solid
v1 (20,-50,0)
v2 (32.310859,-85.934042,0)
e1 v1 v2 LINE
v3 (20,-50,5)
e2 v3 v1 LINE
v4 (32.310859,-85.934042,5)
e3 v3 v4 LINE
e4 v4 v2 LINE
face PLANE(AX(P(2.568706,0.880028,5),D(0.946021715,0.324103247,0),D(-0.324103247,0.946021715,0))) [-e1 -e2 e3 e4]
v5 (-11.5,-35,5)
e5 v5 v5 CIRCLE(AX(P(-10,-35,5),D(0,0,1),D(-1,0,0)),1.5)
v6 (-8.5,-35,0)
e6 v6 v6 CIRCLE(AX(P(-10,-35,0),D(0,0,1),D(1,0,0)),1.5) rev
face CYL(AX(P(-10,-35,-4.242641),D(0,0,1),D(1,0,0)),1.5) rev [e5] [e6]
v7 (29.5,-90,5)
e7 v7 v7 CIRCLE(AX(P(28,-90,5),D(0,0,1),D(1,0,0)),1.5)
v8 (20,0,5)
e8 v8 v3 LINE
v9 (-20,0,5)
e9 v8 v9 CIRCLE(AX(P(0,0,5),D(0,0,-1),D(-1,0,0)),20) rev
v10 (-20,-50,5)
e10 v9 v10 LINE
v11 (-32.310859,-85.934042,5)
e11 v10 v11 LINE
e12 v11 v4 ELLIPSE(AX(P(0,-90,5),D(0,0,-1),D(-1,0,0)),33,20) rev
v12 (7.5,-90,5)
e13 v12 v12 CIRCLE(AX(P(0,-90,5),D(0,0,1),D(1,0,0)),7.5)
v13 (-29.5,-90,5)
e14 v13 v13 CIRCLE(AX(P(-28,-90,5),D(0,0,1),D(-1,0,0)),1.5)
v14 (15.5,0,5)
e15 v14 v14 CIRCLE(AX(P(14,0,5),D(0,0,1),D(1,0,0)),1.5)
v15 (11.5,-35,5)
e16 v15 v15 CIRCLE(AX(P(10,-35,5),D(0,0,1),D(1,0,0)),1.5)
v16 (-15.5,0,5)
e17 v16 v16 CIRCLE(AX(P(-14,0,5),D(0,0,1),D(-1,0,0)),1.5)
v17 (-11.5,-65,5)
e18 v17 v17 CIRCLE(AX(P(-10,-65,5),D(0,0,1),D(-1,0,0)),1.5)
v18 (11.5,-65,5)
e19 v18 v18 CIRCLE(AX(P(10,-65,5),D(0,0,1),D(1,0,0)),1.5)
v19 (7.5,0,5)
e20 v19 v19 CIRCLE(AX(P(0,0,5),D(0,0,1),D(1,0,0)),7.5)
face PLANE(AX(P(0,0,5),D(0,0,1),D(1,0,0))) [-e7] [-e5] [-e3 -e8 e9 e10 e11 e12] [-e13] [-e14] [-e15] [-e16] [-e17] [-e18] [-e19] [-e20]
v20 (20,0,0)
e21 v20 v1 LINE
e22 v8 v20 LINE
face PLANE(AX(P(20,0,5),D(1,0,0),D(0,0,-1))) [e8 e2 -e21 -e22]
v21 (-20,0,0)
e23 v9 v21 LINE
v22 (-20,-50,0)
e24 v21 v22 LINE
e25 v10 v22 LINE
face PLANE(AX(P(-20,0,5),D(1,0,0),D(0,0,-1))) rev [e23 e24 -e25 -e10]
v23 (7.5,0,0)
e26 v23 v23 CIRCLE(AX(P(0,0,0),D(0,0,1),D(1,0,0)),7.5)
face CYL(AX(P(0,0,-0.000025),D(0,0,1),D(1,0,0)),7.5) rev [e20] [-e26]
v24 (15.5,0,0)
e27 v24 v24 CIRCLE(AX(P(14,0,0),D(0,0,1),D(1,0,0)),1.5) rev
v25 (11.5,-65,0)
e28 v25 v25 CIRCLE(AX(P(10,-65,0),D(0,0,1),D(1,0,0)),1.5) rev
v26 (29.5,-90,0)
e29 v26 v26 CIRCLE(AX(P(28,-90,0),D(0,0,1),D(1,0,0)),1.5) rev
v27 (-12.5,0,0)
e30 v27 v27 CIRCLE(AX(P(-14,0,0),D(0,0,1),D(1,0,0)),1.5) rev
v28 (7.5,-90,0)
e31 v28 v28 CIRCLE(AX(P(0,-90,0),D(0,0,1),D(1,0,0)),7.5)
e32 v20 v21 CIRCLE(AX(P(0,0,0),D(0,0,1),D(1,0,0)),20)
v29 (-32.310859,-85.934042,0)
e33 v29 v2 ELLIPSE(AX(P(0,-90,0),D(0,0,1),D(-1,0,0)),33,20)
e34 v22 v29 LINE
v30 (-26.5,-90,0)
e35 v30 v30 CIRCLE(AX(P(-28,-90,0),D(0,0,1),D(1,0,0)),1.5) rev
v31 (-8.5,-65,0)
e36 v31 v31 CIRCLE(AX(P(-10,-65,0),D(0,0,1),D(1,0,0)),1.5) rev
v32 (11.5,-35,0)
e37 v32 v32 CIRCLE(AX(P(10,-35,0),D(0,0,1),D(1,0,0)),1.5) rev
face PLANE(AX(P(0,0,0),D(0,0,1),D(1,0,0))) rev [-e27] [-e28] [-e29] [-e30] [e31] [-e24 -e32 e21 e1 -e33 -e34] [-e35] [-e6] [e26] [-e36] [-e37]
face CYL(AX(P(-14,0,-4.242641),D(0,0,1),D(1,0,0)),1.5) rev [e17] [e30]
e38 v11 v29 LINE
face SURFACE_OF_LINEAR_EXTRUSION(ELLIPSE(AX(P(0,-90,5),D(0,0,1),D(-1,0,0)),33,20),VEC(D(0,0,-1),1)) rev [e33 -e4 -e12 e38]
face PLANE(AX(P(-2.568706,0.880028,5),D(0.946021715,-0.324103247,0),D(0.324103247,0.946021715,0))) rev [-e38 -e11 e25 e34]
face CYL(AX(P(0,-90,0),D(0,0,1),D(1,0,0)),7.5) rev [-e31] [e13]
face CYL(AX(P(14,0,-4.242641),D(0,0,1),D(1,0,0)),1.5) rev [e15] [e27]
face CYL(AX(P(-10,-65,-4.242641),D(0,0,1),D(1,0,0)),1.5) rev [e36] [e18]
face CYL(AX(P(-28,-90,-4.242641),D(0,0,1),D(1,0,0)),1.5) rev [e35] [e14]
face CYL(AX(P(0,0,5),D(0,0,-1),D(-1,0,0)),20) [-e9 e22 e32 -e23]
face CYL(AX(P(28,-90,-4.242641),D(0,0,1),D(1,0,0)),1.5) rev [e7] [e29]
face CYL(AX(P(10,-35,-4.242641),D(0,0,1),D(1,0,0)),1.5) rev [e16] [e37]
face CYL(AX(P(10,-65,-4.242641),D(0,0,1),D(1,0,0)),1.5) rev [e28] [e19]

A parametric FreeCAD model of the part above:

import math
import FreeCAD as App
import Part
import Sketcher
from FreeCAD import Vector

doc = App.newDocument("Part")
params = doc.addObject("Spreadsheet::Sheet", "Params")
for row, (alias, value) in enumerate([
    ("sketch1_radius", "20 mm"),
    ("sketch1_height", "50 mm"),
    ("pad1_length", "5 mm"),
    ("sketch2_diameter", "15 mm"),
    ("sketch2_radius", "20 mm"),
    ("sketch2_height", "50 mm"),
    ("sketch3_diameter", "15 mm"),
    ("sketch4_diameter", "3 mm"),
    ("pocket3_length", "5 mm"),
], start=1):
    params.set(f"A{row}", alias)
    params.set(f"B{row}", "=" + value)
    params.setAlias(f"B{row}", alias)

body = doc.addObject("PartDesign::Body", "Body")

# Sketch on XY plane
sketch1 = doc.addObject("Sketcher::SketchObject", "Sketch")
body.addObject(sketch1)
sketch1.AttachmentSupport = (doc.XY_Plane, [""])
sketch1.MapMode = "FlatFace"
sketch1.addGeometry([
    Part.LineSegment(Vector(-20, -50, 0), Vector(-32.310859, -85.934042, 0)),  # 0
    Part.BSplineCurve([Vector(-32.310859, -85.934042, 0), Vector(-32.585072, -86.734441, 0), Vector(-32.792534, -87.545444, 0), Vector(-32.931085, -88.362901, 0), Vector(-33, -89.182529, 0), Vector(-33, -95.656854, 0), Vector(-29.582738, -102.573593, 0), Vector(-20.746429, -107.928932, 0), Vector(-9.33381, -110, 0), Vector(0, -110, 0)], [6, 4, 6], [6.078460318, 6.283185307, 7.699871593], False, 5, [1, 1, 0.99998904, 0.99998904, 1, 1, 0.965685425, 0.965685425, 1, 1], False),  # 1
    Part.BSplineCurve([Vector(0, -110, 0), Vector(40.555759, -110, 0), Vector(32.310859, -85.934042, 0)], [3, 3], [1.570796321, 3.346317643], False, 2, [1, 0.631150574, 1], False),  # 2
    Part.LineSegment(Vector(32.310859, -85.934042, 0), Vector(20, -50, 0)),  # 3
    Part.LineSegment(Vector(20, -50, 0), Vector(20, 0, 0)),  # 4
    Part.ArcOfCircle(Part.Circle(Vector(0, 0, 0), Vector(0, 0, 1), 20), math.radians(0), math.radians(180)),  # 5
    Part.LineSegment(Vector(-20, 0, 0), Vector(-20, -50, 0)),  # 6
], False)
sketch1.addConstraint([
    Sketcher.Constraint("Block", 1),
    Sketcher.Constraint("Block", 2),
    Sketcher.Constraint("Coincident", 0, 2, 1, 1),
    Sketcher.Constraint("Coincident", 2, 2, 3, 1),
    Sketcher.Constraint("Coincident", 3, 2, 4, 1),
    Sketcher.Constraint("Tangent", 4, 2, 5, 1),
    Sketcher.Constraint("Tangent", 5, 2, 6, 1),
    Sketcher.Constraint("Coincident", 6, 2, 0, 1),
    Sketcher.Constraint("Vertical", 4),
    Sketcher.Constraint("Vertical", 6),
    Sketcher.Constraint("Coincident", 5, 3, -1, 1),
    Sketcher.Constraint("Horizontal", 3, 2, 6, 2),
    Sketcher.Constraint("Radius", 5, 20.0),
    Sketcher.Constraint("DistanceY", 4, 1, 4, 2, 50.0),
])
sketch1.setExpression("Constraints[12]", "Params.sketch1_radius")
sketch1.setExpression("Constraints[13]", "Params.sketch1_height")
pad1 = doc.addObject("PartDesign::Pad", "Pad")
body.addObject(pad1)
pad1.Profile = sketch1
pad1.setExpression("Length", "Params.pad1_length")

# Sketch on XY plane
sketch2 = doc.addObject("Sketcher::SketchObject", "Sketch001")
body.addObject(sketch2)
sketch2.AttachmentSupport = (doc.XY_Plane, [""])
sketch2.MapMode = "FlatFace"
sketch2.AttachmentOffset = App.Placement(Vector(0, 0, 5), App.Rotation())
sketch2.addGeometry([
    Part.LineSegment(Vector(-48.588, 35.588, 0), Vector(-48.588, -125.588, 0)),  # 0
    Part.LineSegment(Vector(-48.588, -125.588, 0), Vector(48.588, -125.588, 0)),  # 1
    Part.LineSegment(Vector(48.588, -125.588, 0), Vector(48.588, 35.588, 0)),  # 2
    Part.LineSegment(Vector(48.588, 35.588, 0), Vector(-48.588, 35.588, 0)),  # 3
    Part.LineSegment(Vector(20, -50, 0), Vector(32.310859, -85.934042, 0)),  # 4
    Part.BSplineCurve([Vector(-32.310859, -85.934042, 0), Vector(-40.555759, -110, 0), Vector(0, -110, 0), Vector(40.555759, -110, 0), Vector(32.310859, -85.934042, 0)], [3, 2, 3], [6.078460318, 7.853981634, 9.62950295], False, 2, [1, 0.631150576, 1, 0.631150576, 1], False),  # 5
    Part.LineSegment(Vector(-32.310859, -85.934042, 0), Vector(-20, -50, 0)),  # 6
    Part.LineSegment(Vector(-20, -50, 0), Vector(-20, 0, 0)),  # 7
    Part.ArcOfCircle(Part.Circle(Vector(0, 0, 0), Vector(0, 0, 1), 20), math.radians(0), math.radians(180)),  # 8
    Part.LineSegment(Vector(20, 0, 0), Vector(20, -50, 0)),  # 9
    Part.Circle(Vector(0, -90, 0), Vector(0, 0, 1), 7.5),  # 10
], False)
sketch2.addConstraint([
    Sketcher.Constraint("Block", 5),
    Sketcher.Constraint("Coincident", 0, 2, 1, 1),
    Sketcher.Constraint("Coincident", 1, 2, 2, 1),
    Sketcher.Constraint("Coincident", 2, 2, 3, 1),
    Sketcher.Constraint("Coincident", 3, 2, 0, 1),
    Sketcher.Constraint("Coincident", 4, 2, 5, 2),
    Sketcher.Constraint("Coincident", 5, 1, 6, 1),
    Sketcher.Constraint("Coincident", 6, 2, 7, 1),
    Sketcher.Constraint("Tangent", 7, 2, 8, 2),
    Sketcher.Constraint("Tangent", 8, 1, 9, 1),
    Sketcher.Constraint("Coincident", 9, 2, 4, 1),
    Sketcher.Constraint("Vertical", 0),
    Sketcher.Constraint("Horizontal", 1),
    Sketcher.Constraint("Vertical", 2),
    Sketcher.Constraint("Horizontal", 3),
    Sketcher.Constraint("Vertical", 7),
    Sketcher.Constraint("Vertical", 9),
    Sketcher.Constraint("Coincident", 8, 3, -1, 1),
    Sketcher.Constraint("PointOnObject", 10, 3, -2),
    Sketcher.Constraint("Horizontal", 6, 2, 9, 2),
    Sketcher.Constraint("Diameter", 10, 15.0),
    Sketcher.Constraint("Radius", 8, 20.0),
    Sketcher.Constraint("DistanceY", 7, 1, 7, 2, 50.0),
    Sketcher.Constraint("DistanceY", 10, 3, -1, 1, 90.0),
    Sketcher.Constraint("DistanceX", 1, 1, 1, 2, 97.176),
    Sketcher.Constraint("DistanceY", 0, 2, 0, 1, 161.176),
    Sketcher.Constraint("DistanceX", 0, 2, -1, 1, 48.588),
    Sketcher.Constraint("DistanceY", 0, 2, -1, 1, 125.588),
])
sketch2.setExpression("Constraints[20]", "Params.sketch2_diameter")
sketch2.setExpression("Constraints[21]", "Params.sketch2_radius")
sketch2.setExpression("Constraints[22]", "Params.sketch2_height")
pocket1 = doc.addObject("PartDesign::Pocket", "Pocket")
body.addObject(pocket1)
pocket1.Profile = sketch2
pocket1.Type = "ThroughAll"
pocket1.Midplane = True

# Sketch on XY plane
sketch3 = doc.addObject("Sketcher::SketchObject", "Sketch002")
body.addObject(sketch3)
sketch3.AttachmentSupport = (doc.XY_Plane, [""])
sketch3.MapMode = "FlatFace"
sketch3.AttachmentOffset = App.Placement(Vector(0, 0, 5), App.Rotation())
sketch3.addGeometry(Part.Circle(Vector(0, 0, 0), Vector(0, 0, 1), 8), False)
sketch3.addConstraint([
    Sketcher.Constraint("Coincident", 0, 3, -1, 1),
    Sketcher.Constraint("Diameter", 0, 15.0),
])
sketch3.setExpression("Constraints[1]", "Params.sketch3_diameter")
pocket2 = doc.addObject("PartDesign::Pocket", "Pocket001")
body.addObject(pocket2)
pocket2.Profile = sketch3
pocket2.Type = "ThroughAll"

# Sketch on XY plane
sketch4 = doc.addObject("Sketcher::SketchObject", "Sketch003")
body.addObject(sketch4)
sketch4.AttachmentSupport = (doc.XY_Plane, [""])
sketch4.MapMode = "FlatFace"
sketch4.AttachmentOffset = App.Placement(Vector(0, 0, 5), App.Rotation())
sketch4.addGeometry([
    Part.Circle(Vector(28, -90, 0), Vector(0, 0, 1), 1.5),  # 0
    Part.Circle(Vector(14, 0, 0), Vector(0, 0, 1), 1.5),  # 1
    Part.Circle(Vector(10, -35, 0), Vector(0, 0, 1), 1.5),  # 2
    Part.Circle(Vector(10, -65, 0), Vector(0, 0, 1), 1.5),  # 3
    Part.Circle(Vector(-14, 0, 0), Vector(0, 0, 1), 1.5),  # 4
    Part.Circle(Vector(-10, -35, 0), Vector(0, 0, 1), 1.5),  # 5
    Part.Circle(Vector(-10, -65, 0), Vector(0, 0, 1), 1.5),  # 6
    Part.Circle(Vector(-28, -90, 0), Vector(0, 0, 1), 1.5),  # 7
], False)
sketch4.addConstraint([
    Sketcher.Constraint("Equal", 0, 1),
    Sketcher.Constraint("Equal", 1, 2),
    Sketcher.Constraint("Equal", 2, 3),
    Sketcher.Constraint("Equal", 3, 4),
    Sketcher.Constraint("Equal", 4, 5),
    Sketcher.Constraint("Equal", 5, 6),
    Sketcher.Constraint("Equal", 6, 7),
    Sketcher.Constraint("Symmetric", 1, 3, 4, 3, -1, 1),
    Sketcher.Constraint("Symmetric", 2, 3, 5, 3, -2),
    Sketcher.Constraint("Symmetric", 3, 3, 6, 3, -2),
    Sketcher.Constraint("Symmetric", 0, 3, 7, 3, -2),
    Sketcher.Constraint("PointOnObject", 1, 3, -1),
    Sketcher.Constraint("Vertical", 2, 3, 3, 3),
    Sketcher.Constraint("Diameter", 0, 3.0),
    Sketcher.Constraint("DistanceX", -1, 1, 0, 3, 28.0),
    Sketcher.Constraint("DistanceY", 0, 3, -1, 1, 90.0),
    Sketcher.Constraint("DistanceX", -1, 1, 1, 3, 14.0),
    Sketcher.Constraint("DistanceX", -1, 1, 2, 3, 10.0),
    Sketcher.Constraint("DistanceY", 2, 3, -1, 1, 35.0),
    Sketcher.Constraint("DistanceY", 3, 3, -1, 1, 65.0),
])
sketch4.setExpression("Constraints[13]", "Params.sketch4_diameter")
pocket3 = doc.addObject("PartDesign::Pocket", "Pocket002")
body.addObject(pocket3)
pocket3.Profile = sketch4
pocket3.setExpression("Length", "Params.pocket3_length")

doc.recompute()
